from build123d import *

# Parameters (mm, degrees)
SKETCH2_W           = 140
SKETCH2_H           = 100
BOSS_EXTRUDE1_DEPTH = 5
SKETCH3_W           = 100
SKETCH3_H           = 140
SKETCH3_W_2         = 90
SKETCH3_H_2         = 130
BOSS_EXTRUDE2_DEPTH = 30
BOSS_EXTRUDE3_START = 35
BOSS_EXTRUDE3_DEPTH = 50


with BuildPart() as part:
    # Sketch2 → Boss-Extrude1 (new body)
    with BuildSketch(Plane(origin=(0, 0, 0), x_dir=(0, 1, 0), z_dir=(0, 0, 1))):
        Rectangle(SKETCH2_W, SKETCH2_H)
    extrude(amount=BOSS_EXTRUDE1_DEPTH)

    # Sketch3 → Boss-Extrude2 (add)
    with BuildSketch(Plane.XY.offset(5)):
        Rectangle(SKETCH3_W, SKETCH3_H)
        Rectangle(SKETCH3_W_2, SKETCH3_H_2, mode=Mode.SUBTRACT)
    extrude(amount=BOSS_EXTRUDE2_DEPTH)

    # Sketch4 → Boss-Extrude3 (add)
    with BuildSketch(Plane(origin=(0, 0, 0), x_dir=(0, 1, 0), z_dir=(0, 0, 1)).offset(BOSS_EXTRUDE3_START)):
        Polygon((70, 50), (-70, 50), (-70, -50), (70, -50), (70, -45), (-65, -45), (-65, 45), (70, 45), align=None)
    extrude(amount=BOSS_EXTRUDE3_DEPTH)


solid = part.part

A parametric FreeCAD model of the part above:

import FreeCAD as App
import Part
import Sketcher


def add_polygon(sketch, points):
    """Adds a closed chain of lines whose ends are joined by coincident constraints."""
    first, n = sketch.GeometryCount, len(points)
    for a, b in zip(points, points[1:] + points[:1]):
        sketch.addGeometry(Part.LineSegment(App.Vector(*a, 0), App.Vector(*b, 0)), False)
    for i in range(n):
        sketch.addConstraint(Sketcher.Constraint("Coincident", first + i, 2, first + (i + 1) % n, 1))

doc = App.newDocument("Part")
params = doc.addObject("Spreadsheet::Sheet", "Params")
for row, (alias, value) in enumerate([
    ("sketch1_width", "100 mm"),
    ("sketch1_height", "140 mm"),
    ("pad1_length", "5 mm"),
    ("sketch2_width", "100 mm"),
    ("sketch2_width2", "90 mm"),
    ("sketch2_height", "140 mm"),
    ("sketch2_height2", "130 mm"),
    ("pad2_length", "30 mm"),
    ("sketch3_width", "100 mm"),
    ("sketch3_width2", "5 mm"),
    ("sketch3_height", "140 mm"),
    ("sketch3_height2", "135 mm"),
    ("pad3_length", "50 mm"),
], start=1):
    params.set(f"A{row}", alias)
    params.set(f"B{row}", "=" + value)
    params.setAlias(f"B{row}", alias)

body = doc.addObject("PartDesign::Body", "Body")

# Sketch on XY plane
sketch1 = body.newObject("Sketcher::SketchObject", "Sketch")
sketch1.AttachmentSupport = (doc.getObject("XY_Plane"), [""])
sketch1.MapMode = "FlatFace"
add_polygon(sketch1, [(-50, -70), (50, -70), (50, 70), (-50, 70)])  # lines 0-3
sketch1.addConstraint([
    Sketcher.Constraint("Horizontal", 0),
    Sketcher.Constraint("Vertical", 1),
    Sketcher.Constraint("Horizontal", 2),
    Sketcher.Constraint("Vertical", 3),
    Sketcher.Constraint("Symmetric", 0, 2, 2, 2, -1, 1),
    Sketcher.Constraint("DistanceX", 0, 1, 0, 2, 100.0),
    Sketcher.Constraint("DistanceY", 1, 1, 1, 2, 140.0),
])
sketch1.setExpression("Constraints[9]", "Params.sketch1_width")
sketch1.setExpression("Constraints[10]", "Params.sketch1_height")
pad1 = body.newObject("PartDesign::Pad", "Pad")
pad1.Profile = sketch1
pad1.setExpression("Length", "Params.pad1_length")

# Sketch on XY plane
sketch2 = body.newObject("Sketcher::SketchObject", "Sketch001")
sketch2.AttachmentSupport = (doc.getObject("XY_Plane"), [""])
sketch2.MapMode = "FlatFace"
sketch2.AttachmentOffset = App.Placement(App.Vector(0, 0, 5), App.Rotation())
add_polygon(sketch2, [(-50, 70), (-50, -70), (50, -70), (50, 70)])  # lines 0-3
add_polygon(sketch2, [(45, -65), (-45, -65), (-45, 65), (45, 65)])  # lines 4-7
sketch2.addConstraint([
    Sketcher.Constraint("Vertical", 0),
    Sketcher.Constraint("Horizontal", 1),
    Sketcher.Constraint("Vertical", 2),
    Sketcher.Constraint("Horizontal", 3),
    Sketcher.Constraint("Horizontal", 4),
    Sketcher.Constraint("Vertical", 5),
    Sketcher.Constraint("Horizontal", 6),
    Sketcher.Constraint("Vertical", 7),
    Sketcher.Constraint("Symmetric", 0, 2, 2, 2, -1, 1),
    Sketcher.Constraint("Symmetric", 4, 2, 6, 2, -1, 1),
    Sketcher.Constraint("DistanceX", 1, 1, 1, 2, 100.0),
    Sketcher.Constraint("DistanceX", 4, 2, 4, 1, 90.0),
    Sketcher.Constraint("DistanceY", 0, 2, 0, 1, 140.0),
    Sketcher.Constraint("DistanceY", 5, 1, 5, 2, 130.0),
])
sketch2.setExpression("Constraints[18]", "Params.sketch2_width")
sketch2.setExpression("Constraints[19]", "Params.sketch2_width2")
sketch2.setExpression("Constraints[20]", "Params.sketch2_height")
sketch2.setExpression("Constraints[21]", "Params.sketch2_height2")
pad2 = body.newObject("PartDesign::Pad", "Pad001")
pad2.Profile = sketch2
pad2.setExpression("Length", "Params.pad2_length")

# Sketch on XY plane
sketch3 = body.newObject("Sketcher::SketchObject", "Sketch002")
sketch3.AttachmentSupport = (doc.getObject("XY_Plane"), [""])
sketch3.MapMode = "FlatFace"
sketch3.AttachmentOffset = App.Placement(App.Vector(0, 0, 35), App.Rotation())
add_polygon(sketch3, [(-50, 70), (-50, -70), (50, -70), (50, 70), (45, 70), (45, -65), (-45, -65), (-45, 70)])  # lines 0-7
sketch3.addConstraint([
    Sketcher.Constraint("Vertical", 0),
    Sketcher.Constraint("Horizontal", 1),
    Sketcher.Constraint("Vertical", 2),
    Sketcher.Constraint("Horizontal", 3),
    Sketcher.Constraint("Vertical", 4),
    Sketcher.Constraint("Horizontal", 5),
    Sketcher.Constraint("Vertical", 6),
    Sketcher.Constraint("Horizontal", 7),
    Sketcher.Constraint("Symmetric", 0, 2, 2, 2, -1, 1),
    Sketcher.Constraint("Symmetric", 3, 2, 6, 2, -2),
    Sketcher.Constraint("DistanceX", 1, 1, 1, 2, 100.0),
    Sketcher.Constraint("DistanceX", 3, 2, 3, 1, 5.0),
    Sketcher.Constraint("DistanceY", 0, 2, 0, 1, 140.0),
    Sketcher.Constraint("DistanceY", 4, 2, 4, 1, 135.0),
])
sketch3.setExpression("Constraints[18]", "Params.sketch3_width")
sketch3.setExpression("Constraints[19]", "Params.sketch3_width2")
sketch3.setExpression("Constraints[20]", "Params.sketch3_height")
sketch3.setExpression("Constraints[21]", "Params.sketch3_height2")
pad3 = body.newObject("PartDesign::Pad", "Pad002")
pad3.Profile = sketch3
pad3.setExpression("Length", "Params.pad3_length")

doc.recompute()
